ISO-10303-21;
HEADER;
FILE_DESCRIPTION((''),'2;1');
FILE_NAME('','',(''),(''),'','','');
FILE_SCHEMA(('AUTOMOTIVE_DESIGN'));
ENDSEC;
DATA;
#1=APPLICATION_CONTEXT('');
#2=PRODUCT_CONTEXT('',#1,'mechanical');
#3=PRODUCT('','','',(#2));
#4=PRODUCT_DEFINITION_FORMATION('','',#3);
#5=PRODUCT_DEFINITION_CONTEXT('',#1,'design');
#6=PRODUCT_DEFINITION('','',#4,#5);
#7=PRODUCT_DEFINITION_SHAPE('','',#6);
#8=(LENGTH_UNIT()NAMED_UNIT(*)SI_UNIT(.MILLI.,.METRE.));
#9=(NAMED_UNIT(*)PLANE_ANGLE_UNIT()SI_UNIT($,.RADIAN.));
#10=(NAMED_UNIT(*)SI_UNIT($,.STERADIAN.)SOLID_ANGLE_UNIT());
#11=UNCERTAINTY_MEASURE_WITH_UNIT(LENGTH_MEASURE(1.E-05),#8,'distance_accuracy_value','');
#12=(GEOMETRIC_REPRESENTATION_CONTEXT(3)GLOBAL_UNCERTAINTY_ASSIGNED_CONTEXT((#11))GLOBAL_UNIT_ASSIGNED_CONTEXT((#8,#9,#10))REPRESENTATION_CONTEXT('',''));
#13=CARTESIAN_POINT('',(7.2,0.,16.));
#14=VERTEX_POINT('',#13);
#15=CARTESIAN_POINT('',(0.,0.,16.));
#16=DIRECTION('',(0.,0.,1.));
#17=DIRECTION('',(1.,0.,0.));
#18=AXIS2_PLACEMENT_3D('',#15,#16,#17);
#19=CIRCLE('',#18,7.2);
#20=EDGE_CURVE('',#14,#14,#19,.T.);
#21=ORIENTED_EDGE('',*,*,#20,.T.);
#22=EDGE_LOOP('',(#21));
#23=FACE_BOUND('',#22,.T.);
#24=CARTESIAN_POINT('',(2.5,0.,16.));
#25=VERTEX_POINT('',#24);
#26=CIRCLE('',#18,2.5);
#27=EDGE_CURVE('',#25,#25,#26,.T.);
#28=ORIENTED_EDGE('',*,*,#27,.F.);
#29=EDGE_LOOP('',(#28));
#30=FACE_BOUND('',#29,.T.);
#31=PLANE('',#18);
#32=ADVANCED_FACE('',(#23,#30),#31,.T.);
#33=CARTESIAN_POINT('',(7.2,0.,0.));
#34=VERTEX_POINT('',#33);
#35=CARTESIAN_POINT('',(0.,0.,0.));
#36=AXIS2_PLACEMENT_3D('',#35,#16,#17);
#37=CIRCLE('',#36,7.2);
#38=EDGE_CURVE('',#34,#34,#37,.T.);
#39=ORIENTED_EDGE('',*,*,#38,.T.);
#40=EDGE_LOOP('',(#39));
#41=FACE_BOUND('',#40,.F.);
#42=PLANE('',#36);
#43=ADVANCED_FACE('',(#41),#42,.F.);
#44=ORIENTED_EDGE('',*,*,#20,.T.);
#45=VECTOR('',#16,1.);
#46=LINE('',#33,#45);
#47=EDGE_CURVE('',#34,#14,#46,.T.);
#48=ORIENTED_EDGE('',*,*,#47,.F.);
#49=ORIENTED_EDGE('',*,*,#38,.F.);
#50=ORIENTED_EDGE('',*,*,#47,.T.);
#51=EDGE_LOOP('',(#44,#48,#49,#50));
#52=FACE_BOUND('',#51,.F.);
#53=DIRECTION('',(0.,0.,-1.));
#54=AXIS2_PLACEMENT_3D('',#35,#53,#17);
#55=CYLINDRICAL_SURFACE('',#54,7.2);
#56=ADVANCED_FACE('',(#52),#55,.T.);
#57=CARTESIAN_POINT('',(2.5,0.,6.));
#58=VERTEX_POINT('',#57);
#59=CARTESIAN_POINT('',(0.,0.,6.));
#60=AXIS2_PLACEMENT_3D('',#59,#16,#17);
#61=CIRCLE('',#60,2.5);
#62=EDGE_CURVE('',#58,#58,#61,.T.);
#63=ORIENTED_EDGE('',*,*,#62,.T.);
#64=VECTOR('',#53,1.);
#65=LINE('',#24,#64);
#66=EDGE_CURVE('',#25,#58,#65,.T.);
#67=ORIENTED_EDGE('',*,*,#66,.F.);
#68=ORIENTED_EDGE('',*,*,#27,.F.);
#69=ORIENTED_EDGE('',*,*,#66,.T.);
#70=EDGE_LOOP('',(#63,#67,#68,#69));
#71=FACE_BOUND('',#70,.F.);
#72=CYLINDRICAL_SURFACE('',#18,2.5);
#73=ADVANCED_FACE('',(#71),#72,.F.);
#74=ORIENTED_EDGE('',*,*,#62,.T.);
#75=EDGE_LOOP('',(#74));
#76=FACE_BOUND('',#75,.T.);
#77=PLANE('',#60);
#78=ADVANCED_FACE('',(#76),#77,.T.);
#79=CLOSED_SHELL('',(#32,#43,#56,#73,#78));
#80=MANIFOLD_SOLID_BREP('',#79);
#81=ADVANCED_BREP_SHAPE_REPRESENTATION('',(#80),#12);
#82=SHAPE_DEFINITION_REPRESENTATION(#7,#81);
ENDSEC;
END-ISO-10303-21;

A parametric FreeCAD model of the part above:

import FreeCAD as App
import Part
import Sketcher
Q = App.Units.Quantity

doc = App.newDocument("Part")
params = doc.addObject("Spreadsheet::Sheet", "Params")
for row, (alias, value) in enumerate([
    ("sketch1_diameter", "14.4 mm"),
    ("pad1_length", "16 mm"),
    ("sketch2_diameter", "5 mm"),
    ("pocket1_length", "10 mm"),
], start=1):
    params.set(f"A{row}", alias)
    params.set(f"B{row}", "=" + value)
    params.setAlias(f"B{row}", alias)

body = doc.addObject("PartDesign::Body", "Body")

# Sketch on XY plane
sketch1 = body.newObject("Sketcher::SketchObject", "Sketch")
sketch1.AttachmentSupport = (doc.getObject("XY_Plane"), [""])
sketch1.MapMode = "FlatFace"
sketch1.addGeometry(Part.Circle(App.Vector(0, 0, 0), App.Vector(0, 0, 1), 7), False)
sketch1.addConstraint(Sketcher.Constraint("Coincident", 0, 3, -1, 1))
sketch1.addConstraint(Sketcher.Constraint("Diameter", 0, Q("14.4 mm")))
sketch1.setExpression("Constraints[1]", "Params.sketch1_diameter")
pad1 = body.newObject("PartDesign::Pad", "Pad")
pad1.Profile = sketch1
pad1.setExpression("Length", "Params.pad1_length")

# Sketch on XY plane
sketch2 = body.newObject("Sketcher::SketchObject", "Sketch001")
sketch2.AttachmentSupport = (doc.getObject("XY_Plane"), [""])
sketch2.MapMode = "FlatFace"
sketch2.AttachmentOffset = App.Placement(App.Vector(0, 0, 16), App.Rotation())
sketch2.addGeometry(Part.Circle(App.Vector(0, 0, 0), App.Vector(0, 0, 1), 2.5), False)
sketch2.addConstraint(Sketcher.Constraint("Coincident", 0, 3, -1, 1))
sketch2.addConstraint(Sketcher.Constraint("Diameter", 0, Q("5 mm")))
sketch2.setExpression("Constraints[1]", "Params.sketch2_diameter")
pocket1 = body.newObject("PartDesign::Pocket", "Pocket")
pocket1.Profile = sketch2
pocket1.setExpression("Length", "Params.pocket1_length")

doc.recompute()
